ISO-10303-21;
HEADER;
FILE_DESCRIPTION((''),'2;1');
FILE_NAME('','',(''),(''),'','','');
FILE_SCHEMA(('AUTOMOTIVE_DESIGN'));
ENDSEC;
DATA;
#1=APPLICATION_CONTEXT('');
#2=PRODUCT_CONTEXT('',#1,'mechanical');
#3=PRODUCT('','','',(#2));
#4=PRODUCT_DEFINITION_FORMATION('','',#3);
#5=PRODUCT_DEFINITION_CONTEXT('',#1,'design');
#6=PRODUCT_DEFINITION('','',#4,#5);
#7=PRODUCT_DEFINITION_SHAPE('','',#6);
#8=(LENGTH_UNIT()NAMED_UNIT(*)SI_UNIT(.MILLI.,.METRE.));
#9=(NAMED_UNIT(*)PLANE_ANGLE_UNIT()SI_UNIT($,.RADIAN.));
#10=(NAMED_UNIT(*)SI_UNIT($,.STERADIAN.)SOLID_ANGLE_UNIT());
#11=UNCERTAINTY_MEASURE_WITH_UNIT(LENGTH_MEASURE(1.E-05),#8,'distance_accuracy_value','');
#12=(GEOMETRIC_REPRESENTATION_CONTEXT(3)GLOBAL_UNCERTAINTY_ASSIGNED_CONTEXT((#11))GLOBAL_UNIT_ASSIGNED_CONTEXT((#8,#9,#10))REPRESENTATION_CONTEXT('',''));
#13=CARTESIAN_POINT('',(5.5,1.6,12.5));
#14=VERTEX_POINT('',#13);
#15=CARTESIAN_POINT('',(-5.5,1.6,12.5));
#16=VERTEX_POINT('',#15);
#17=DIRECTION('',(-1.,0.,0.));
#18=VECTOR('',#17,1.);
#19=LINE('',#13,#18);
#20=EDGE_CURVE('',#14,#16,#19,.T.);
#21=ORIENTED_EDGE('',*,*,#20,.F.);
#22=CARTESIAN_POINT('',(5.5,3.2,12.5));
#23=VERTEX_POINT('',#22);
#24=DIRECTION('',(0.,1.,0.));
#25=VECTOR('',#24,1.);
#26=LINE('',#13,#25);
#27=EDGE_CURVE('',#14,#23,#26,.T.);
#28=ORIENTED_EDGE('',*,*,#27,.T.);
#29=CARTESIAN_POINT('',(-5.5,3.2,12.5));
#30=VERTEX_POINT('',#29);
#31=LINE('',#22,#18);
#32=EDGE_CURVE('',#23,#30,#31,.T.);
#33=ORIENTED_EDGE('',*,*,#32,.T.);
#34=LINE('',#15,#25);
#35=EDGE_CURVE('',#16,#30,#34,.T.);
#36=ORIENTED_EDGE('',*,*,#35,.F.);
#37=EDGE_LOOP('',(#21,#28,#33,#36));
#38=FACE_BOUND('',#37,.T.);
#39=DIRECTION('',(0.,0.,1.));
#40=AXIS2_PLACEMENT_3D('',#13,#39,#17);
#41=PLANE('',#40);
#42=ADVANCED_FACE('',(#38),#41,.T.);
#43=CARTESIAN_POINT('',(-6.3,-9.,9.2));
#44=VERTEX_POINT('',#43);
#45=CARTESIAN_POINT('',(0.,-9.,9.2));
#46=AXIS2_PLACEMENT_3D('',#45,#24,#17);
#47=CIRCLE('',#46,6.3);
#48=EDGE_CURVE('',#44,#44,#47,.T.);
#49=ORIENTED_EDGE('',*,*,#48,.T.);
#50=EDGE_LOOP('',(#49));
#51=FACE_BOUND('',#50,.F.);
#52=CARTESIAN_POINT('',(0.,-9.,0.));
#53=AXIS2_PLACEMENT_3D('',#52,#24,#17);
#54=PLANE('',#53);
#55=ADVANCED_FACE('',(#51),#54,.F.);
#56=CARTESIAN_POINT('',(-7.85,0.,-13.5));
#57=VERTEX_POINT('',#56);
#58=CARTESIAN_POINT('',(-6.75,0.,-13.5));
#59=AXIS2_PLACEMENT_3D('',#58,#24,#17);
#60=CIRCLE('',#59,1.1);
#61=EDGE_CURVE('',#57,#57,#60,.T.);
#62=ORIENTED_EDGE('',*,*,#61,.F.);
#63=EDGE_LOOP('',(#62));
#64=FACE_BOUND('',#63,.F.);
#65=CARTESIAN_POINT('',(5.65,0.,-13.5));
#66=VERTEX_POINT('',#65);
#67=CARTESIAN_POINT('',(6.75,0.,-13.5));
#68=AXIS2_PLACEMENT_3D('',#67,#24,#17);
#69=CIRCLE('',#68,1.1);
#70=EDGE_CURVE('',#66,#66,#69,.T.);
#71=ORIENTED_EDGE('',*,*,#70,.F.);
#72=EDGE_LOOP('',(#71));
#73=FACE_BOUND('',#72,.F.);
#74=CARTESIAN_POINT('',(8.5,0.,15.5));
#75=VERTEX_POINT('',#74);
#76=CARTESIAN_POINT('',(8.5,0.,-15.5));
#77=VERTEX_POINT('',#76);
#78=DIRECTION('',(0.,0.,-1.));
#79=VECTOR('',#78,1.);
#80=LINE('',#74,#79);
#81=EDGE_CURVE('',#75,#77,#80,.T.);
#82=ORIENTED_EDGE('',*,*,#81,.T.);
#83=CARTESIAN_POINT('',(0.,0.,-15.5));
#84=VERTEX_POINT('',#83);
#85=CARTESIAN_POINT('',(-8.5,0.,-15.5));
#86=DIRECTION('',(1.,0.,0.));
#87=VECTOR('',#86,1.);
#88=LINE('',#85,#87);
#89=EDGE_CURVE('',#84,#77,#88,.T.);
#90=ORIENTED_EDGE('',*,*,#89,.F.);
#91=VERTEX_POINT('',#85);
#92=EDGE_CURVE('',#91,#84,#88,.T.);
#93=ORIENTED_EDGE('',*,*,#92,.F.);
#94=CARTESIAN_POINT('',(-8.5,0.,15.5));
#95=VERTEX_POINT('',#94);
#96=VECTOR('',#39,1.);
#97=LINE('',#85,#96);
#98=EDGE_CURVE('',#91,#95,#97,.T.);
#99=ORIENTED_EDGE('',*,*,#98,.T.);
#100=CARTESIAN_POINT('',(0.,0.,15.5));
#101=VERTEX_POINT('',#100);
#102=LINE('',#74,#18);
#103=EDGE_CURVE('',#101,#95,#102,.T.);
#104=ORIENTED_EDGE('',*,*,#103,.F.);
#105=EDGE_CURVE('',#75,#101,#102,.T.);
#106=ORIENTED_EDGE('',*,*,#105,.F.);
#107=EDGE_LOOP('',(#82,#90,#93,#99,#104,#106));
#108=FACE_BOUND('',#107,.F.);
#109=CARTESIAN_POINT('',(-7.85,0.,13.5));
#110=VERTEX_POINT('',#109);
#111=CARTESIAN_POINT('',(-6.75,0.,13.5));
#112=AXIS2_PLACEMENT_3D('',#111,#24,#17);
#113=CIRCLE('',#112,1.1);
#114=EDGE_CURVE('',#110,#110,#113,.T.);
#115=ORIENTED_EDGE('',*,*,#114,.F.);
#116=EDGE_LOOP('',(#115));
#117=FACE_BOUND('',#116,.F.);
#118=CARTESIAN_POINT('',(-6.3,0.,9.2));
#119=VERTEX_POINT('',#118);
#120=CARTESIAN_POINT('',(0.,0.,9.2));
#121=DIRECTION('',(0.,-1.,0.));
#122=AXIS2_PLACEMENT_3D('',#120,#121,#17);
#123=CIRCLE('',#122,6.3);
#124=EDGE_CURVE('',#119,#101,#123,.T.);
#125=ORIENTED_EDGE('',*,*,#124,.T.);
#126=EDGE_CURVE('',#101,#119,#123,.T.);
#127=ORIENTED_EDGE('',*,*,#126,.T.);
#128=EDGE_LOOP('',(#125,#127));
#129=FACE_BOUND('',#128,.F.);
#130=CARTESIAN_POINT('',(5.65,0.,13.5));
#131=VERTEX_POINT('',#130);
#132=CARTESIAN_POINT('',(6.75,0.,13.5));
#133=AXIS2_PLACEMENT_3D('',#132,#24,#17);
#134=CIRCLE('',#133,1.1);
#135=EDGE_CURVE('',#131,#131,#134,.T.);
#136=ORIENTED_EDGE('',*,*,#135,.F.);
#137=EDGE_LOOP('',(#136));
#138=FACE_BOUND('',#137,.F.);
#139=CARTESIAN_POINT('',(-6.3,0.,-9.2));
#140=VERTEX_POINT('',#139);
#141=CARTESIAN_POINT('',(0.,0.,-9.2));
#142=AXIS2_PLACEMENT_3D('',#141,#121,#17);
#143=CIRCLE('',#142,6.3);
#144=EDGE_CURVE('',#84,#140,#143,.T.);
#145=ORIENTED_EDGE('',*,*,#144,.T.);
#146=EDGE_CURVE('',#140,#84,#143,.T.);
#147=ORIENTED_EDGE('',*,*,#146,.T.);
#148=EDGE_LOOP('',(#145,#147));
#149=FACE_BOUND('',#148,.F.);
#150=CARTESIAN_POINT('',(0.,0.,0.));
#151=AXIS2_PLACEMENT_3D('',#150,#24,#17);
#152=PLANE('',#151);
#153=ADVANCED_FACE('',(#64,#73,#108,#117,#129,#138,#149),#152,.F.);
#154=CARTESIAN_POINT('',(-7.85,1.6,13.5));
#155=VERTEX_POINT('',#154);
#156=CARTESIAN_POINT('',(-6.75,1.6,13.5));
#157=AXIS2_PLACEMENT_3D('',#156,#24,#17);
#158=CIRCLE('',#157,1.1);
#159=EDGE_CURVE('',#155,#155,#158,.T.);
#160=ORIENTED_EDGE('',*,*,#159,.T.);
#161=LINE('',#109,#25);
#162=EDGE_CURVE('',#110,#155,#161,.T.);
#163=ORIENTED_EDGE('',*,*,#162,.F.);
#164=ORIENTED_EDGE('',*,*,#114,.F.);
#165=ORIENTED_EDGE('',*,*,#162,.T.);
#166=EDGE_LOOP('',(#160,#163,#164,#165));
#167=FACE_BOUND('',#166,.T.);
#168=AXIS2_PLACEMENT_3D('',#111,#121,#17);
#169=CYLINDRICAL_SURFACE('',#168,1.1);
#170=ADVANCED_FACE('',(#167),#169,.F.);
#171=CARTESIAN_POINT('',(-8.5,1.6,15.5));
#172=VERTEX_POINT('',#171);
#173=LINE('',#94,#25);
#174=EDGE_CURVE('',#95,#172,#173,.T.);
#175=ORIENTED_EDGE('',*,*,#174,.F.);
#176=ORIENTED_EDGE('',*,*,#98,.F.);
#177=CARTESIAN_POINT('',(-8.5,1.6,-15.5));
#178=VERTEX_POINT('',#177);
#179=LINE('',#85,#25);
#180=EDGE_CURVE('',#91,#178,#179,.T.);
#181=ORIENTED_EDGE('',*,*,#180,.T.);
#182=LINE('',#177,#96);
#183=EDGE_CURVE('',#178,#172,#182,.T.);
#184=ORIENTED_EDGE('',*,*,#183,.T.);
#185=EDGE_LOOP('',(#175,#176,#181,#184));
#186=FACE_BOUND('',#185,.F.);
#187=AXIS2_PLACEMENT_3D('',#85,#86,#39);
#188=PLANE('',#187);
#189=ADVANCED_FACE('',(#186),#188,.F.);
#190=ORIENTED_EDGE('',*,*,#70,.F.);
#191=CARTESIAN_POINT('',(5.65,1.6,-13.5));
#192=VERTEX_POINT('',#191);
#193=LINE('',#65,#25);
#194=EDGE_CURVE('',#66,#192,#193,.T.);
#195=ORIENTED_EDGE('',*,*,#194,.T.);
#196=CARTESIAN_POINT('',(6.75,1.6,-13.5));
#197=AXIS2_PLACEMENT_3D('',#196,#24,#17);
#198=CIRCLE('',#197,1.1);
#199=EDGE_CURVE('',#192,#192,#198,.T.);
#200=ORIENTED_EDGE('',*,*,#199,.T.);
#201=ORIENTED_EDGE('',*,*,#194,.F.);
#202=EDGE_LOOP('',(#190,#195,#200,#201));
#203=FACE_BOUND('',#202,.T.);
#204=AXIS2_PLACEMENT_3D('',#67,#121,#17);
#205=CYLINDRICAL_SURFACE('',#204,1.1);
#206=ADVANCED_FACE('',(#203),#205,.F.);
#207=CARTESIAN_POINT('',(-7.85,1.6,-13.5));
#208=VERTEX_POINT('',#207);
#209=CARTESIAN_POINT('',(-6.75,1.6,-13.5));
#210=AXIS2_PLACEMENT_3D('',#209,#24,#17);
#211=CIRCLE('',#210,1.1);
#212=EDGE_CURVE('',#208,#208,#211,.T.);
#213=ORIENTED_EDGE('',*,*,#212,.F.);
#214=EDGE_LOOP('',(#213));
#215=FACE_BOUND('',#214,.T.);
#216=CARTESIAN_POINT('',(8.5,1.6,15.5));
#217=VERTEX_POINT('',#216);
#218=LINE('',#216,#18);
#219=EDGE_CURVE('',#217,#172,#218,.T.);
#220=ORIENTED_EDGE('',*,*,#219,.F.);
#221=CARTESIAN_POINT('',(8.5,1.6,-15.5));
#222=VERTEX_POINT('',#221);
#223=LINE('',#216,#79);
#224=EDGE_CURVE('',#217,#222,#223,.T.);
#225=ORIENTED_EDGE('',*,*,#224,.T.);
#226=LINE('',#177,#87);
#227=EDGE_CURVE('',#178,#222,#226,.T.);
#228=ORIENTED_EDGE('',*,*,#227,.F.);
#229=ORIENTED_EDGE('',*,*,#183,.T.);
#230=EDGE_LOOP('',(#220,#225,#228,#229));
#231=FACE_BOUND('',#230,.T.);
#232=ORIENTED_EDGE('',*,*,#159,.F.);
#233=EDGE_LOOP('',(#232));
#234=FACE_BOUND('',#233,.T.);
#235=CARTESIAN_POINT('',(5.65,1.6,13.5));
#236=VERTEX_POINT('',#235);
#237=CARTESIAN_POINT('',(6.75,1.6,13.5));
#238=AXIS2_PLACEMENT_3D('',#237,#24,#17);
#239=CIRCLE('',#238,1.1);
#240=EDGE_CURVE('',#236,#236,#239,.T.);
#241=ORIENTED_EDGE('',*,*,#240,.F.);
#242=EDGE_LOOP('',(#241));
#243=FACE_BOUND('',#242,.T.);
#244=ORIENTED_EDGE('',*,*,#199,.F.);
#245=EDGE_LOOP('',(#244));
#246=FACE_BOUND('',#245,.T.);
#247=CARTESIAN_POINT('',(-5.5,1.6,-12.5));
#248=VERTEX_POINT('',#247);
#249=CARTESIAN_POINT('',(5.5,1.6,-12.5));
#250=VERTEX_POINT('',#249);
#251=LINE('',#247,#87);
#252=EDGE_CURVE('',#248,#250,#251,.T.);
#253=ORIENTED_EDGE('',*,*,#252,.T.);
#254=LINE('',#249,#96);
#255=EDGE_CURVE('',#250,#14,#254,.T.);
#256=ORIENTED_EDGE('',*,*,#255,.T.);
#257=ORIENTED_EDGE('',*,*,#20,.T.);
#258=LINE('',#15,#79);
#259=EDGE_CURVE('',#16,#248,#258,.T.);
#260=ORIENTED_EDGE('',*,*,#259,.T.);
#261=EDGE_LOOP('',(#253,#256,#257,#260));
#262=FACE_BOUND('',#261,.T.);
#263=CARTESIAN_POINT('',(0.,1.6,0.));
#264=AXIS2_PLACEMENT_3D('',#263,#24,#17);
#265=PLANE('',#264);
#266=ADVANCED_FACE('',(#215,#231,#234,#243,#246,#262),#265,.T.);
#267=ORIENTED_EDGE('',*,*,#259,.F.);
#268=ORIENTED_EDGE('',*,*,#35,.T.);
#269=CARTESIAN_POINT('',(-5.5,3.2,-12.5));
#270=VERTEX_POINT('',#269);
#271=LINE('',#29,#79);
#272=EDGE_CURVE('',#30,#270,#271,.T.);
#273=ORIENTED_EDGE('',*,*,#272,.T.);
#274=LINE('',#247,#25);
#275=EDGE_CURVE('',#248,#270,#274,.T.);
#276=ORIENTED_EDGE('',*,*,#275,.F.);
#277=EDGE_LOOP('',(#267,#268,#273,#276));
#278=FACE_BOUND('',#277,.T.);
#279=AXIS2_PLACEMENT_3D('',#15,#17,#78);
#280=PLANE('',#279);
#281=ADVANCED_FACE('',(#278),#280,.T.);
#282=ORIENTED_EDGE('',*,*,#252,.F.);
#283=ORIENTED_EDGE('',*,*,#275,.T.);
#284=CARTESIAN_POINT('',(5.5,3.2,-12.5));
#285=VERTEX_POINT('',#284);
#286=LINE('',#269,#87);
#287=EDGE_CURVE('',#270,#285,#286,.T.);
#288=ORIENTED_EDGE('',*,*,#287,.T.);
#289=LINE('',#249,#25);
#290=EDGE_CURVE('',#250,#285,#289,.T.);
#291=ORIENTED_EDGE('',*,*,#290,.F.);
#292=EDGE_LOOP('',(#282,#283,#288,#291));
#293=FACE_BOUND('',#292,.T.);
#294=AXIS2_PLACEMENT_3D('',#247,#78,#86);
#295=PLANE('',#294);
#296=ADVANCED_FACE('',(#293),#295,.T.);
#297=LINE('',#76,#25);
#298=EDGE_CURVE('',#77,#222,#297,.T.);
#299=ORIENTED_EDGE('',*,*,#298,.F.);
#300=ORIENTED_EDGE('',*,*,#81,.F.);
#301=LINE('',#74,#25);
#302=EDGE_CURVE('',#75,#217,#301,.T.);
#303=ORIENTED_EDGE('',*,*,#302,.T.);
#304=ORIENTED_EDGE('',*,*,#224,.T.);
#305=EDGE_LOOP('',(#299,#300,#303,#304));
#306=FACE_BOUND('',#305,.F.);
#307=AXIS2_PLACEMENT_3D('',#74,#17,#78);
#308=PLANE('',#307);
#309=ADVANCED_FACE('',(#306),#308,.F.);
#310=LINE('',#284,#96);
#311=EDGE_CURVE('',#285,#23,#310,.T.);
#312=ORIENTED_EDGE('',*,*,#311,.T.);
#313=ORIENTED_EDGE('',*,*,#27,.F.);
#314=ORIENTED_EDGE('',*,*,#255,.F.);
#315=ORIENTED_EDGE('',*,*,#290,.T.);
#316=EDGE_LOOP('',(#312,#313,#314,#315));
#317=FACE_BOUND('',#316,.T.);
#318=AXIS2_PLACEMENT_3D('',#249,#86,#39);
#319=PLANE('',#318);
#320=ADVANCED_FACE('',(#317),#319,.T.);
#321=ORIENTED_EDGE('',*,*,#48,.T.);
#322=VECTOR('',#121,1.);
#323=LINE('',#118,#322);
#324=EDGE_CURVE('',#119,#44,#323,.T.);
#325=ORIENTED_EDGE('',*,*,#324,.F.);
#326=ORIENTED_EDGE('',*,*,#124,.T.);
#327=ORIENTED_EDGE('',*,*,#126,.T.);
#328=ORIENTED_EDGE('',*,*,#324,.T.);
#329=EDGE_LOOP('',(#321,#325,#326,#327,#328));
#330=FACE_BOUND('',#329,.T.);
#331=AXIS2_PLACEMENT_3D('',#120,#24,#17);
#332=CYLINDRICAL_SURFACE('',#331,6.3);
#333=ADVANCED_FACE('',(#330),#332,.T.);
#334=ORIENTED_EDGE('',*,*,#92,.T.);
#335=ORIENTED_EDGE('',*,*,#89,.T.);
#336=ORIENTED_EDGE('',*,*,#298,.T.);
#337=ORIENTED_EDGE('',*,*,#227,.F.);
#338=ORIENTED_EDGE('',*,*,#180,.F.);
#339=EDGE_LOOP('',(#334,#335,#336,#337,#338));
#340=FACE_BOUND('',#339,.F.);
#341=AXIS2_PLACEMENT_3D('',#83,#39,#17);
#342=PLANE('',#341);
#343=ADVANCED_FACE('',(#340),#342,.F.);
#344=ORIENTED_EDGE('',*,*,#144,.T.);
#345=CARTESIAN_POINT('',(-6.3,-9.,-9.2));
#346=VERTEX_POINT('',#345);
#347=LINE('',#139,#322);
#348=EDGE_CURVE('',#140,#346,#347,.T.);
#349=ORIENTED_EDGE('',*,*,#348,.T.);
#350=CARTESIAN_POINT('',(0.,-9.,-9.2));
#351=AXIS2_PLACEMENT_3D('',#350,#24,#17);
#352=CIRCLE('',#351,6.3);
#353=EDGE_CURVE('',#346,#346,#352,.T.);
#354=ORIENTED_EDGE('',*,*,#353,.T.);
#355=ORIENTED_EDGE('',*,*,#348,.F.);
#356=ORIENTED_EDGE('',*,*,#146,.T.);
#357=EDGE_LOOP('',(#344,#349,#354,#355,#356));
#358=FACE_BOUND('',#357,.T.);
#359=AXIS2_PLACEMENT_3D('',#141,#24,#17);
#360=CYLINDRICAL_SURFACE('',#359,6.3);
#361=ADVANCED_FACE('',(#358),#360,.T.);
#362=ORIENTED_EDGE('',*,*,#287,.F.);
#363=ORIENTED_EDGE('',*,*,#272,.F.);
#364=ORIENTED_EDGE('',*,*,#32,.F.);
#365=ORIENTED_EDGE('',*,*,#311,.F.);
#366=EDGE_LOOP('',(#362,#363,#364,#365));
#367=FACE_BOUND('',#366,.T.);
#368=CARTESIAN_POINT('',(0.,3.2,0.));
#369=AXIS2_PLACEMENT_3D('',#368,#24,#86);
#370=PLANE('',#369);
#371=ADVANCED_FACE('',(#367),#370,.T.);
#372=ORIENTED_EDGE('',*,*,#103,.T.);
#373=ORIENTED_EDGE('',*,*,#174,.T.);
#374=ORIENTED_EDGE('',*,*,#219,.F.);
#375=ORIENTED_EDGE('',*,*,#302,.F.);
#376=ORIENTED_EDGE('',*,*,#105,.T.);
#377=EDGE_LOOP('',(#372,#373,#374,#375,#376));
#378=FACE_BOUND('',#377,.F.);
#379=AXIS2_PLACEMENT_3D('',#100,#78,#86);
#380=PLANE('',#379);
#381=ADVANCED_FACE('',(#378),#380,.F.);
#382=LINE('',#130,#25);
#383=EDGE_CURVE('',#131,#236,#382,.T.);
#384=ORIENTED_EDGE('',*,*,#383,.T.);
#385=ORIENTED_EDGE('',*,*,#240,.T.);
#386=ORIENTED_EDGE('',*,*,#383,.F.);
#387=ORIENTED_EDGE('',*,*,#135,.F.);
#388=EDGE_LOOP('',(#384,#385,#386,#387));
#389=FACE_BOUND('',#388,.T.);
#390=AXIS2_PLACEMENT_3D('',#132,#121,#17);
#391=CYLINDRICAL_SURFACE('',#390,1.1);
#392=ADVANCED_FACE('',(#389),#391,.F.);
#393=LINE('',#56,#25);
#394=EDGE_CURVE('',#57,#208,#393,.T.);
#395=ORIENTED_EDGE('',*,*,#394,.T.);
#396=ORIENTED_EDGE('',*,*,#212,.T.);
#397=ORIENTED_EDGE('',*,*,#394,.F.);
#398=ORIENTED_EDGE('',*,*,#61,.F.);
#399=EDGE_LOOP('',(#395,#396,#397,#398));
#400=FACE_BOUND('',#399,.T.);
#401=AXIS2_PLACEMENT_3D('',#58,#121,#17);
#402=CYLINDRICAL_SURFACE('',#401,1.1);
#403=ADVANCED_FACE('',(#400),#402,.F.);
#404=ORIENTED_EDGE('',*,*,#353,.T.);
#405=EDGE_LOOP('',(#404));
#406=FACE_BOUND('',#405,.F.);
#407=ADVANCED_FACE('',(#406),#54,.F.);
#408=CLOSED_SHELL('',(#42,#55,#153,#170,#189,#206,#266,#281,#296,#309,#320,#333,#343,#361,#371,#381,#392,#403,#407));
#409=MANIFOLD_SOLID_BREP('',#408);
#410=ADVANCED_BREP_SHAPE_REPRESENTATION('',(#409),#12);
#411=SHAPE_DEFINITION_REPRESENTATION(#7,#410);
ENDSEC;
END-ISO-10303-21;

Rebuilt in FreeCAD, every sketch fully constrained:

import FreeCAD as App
import Part
import Sketcher

V = App.Vector

doc = App.newDocument("Part")
body = doc.addObject("PartDesign::Body", "Body")

# Sketch on XZ plane
sketch1 = doc.addObject("Sketcher::SketchObject", "Sketch")
body.addObject(sketch1)
sketch1.AttachmentSupport = (doc.XZ_Plane, [""])
sketch1.MapMode = "FlatFace"
sketch1.addGeometry(Part.LineSegment(V(-8.5, -15.5, 0), V(-8.5, 15.5, 0)), False)
sketch1.addGeometry(Part.LineSegment(V(-8.5, 15.5, 0), V(8.5, 15.5, 0)), False)
sketch1.addGeometry(Part.LineSegment(V(8.5, 15.5, 0), V(8.5, -15.5, 0)), False)
sketch1.addGeometry(Part.LineSegment(V(8.5, -15.5, 0), V(-8.5, -15.5, 0)), False)
sketch1.addGeometry(Part.Circle(V(6.8, -13.5, 0), V(0, 0, 1), 1.1), False)
sketch1.addGeometry(Part.Circle(V(-6.8, -13.5, 0), V(0, 0, 1), 1.1), False)
sketch1.addGeometry(Part.Circle(V(6.8, 13.5, 0), V(0, 0, 1), 1.1), False)
sketch1.addGeometry(Part.Circle(V(-6.8, 13.5, 0), V(0, 0, 1), 1.1), False)
sketch1.addConstraint(Sketcher.Constraint("Coincident", 0, 2, 1, 1))
sketch1.addConstraint(Sketcher.Constraint("Coincident", 1, 2, 2, 1))
sketch1.addConstraint(Sketcher.Constraint("Coincident", 2, 2, 3, 1))
sketch1.addConstraint(Sketcher.Constraint("Coincident", 3, 2, 0, 1))
sketch1.addConstraint(Sketcher.Constraint("Vertical", 0))
sketch1.addConstraint(Sketcher.Constraint("Horizontal", 1))
sketch1.addConstraint(Sketcher.Constraint("Vertical", 2))
sketch1.addConstraint(Sketcher.Constraint("Horizontal", 3))
sketch1.addConstraint(Sketcher.Constraint("Equal", 4, 5))
sketch1.addConstraint(Sketcher.Constraint("Equal", 5, 6))
sketch1.addConstraint(Sketcher.Constraint("Equal", 6, 7))
sketch1.addConstraint(Sketcher.Constraint("Symmetric", 5, 3, 6, 3, -1, 1))
sketch1.addConstraint(Sketcher.Constraint("Symmetric", 4, 3, 7, 3, -1, 1))
sketch1.addConstraint(Sketcher.Constraint("Symmetric", 0, 2, 2, 2, -1, 1))
sketch1.addConstraint(Sketcher.Constraint("Symmetric", 4, 3, 5, 3, -2))
sketch1.addConstraint(Sketcher.Constraint("Diameter", 4, 2.2))
sketch1.addConstraint(Sketcher.Constraint("DistanceX", 1, 1, 1, 2, 17.0))
sketch1.addConstraint(Sketcher.Constraint("DistanceY", 0, 1, 0, 2, 31.0))
sketch1.addConstraint(Sketcher.Constraint("DistanceY", 4, 3, 6, 3, 27.0))
sketch1.addConstraint(Sketcher.Constraint("DistanceX", 5, 3, 4, 3, 13.5))
pad1 = doc.addObject("PartDesign::Pad", "Pad")
body.addObject(pad1)
pad1.Profile = sketch1
pad1.Length = 1.6
pad1.Reversed = True

# Sketch on XZ plane
sketch2 = doc.addObject("Sketcher::SketchObject", "Sketch001")
body.addObject(sketch2)
sketch2.AttachmentSupport = (doc.XZ_Plane, [""])
sketch2.MapMode = "FlatFace"
sketch2.addGeometry(Part.Circle(V(0, 9, 0), V(0, 0, 1), 6), False)
sketch2.addGeometry(Part.Circle(V(0, -9, 0), V(0, 0, 1), 6), False)
sketch2.addConstraint(Sketcher.Constraint("Equal", 0, 1))
sketch2.addConstraint(Sketcher.Constraint("Symmetric", 0, 3, 1, 3, -1, 1))
sketch2.addConstraint(Sketcher.Constraint("PointOnObject", 0, 3, -2))
sketch2.addConstraint(Sketcher.Constraint("Diameter", 0, 12.6))
sketch2.addConstraint(Sketcher.Constraint("DistanceY", -1, 1, 0, 3, 9.2))
pad2 = doc.addObject("PartDesign::Pad", "Pad001")
body.addObject(pad2)
pad2.Profile = sketch2
pad2.Length = 9

# Sketch on XZ plane
sketch3 = doc.addObject("Sketcher::SketchObject", "Sketch002")
body.addObject(sketch3)
sketch3.AttachmentSupport = (doc.XZ_Plane, [""])
sketch3.MapMode = "FlatFace"
sketch3.AttachmentOffset = App.Placement(V(0, 0, -1.6), App.Rotation())
sketch3.addGeometry(Part.LineSegment(V(-6, -12, 0), V(-6, 12, 0)), False)
sketch3.addGeometry(Part.LineSegment(V(-6, 12, 0), V(6, 12, 0)), False)
sketch3.addGeometry(Part.LineSegment(V(6, 12, 0), V(6, -12, 0)), False)
sketch3.addGeometry(Part.LineSegment(V(6, -12, 0), V(-6, -12, 0)), False)
sketch3.addConstraint(Sketcher.Constraint("Coincident", 0, 2, 1, 1))
sketch3.addConstraint(Sketcher.Constraint("Coincident", 1, 2, 2, 1))
sketch3.addConstraint(Sketcher.Constraint("Coincident", 2, 2, 3, 1))
sketch3.addConstraint(Sketcher.Constraint("Coincident", 3, 2, 0, 1))
sketch3.addConstraint(Sketcher.Constraint("Vertical", 0))
sketch3.addConstraint(Sketcher.Constraint("Horizontal", 1))
sketch3.addConstraint(Sketcher.Constraint("Vertical", 2))
sketch3.addConstraint(Sketcher.Constraint("Horizontal", 3))
sketch3.addConstraint(Sketcher.Constraint("Symmetric", 0, 2, 2, 2, -1, 1))
sketch3.addConstraint(Sketcher.Constraint("DistanceX", 1, 1, 1, 2, 11.0))
sketch3.addConstraint(Sketcher.Constraint("DistanceY", 0, 1, 0, 2, 25.0))
pad3 = doc.addObject("PartDesign::Pad", "Pad002")
body.addObject(pad3)
pad3.Profile = sketch3
pad3.Length = 1.6
pad3.Reversed = True

doc.recompute()
